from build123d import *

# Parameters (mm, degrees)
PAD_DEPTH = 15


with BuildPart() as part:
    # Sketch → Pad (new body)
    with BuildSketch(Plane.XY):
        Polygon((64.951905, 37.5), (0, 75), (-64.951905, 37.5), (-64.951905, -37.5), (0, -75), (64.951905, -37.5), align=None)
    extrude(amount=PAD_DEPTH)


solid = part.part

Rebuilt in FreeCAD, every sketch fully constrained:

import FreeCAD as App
import Part
import Sketcher
from FreeCAD import Vector
Q = App.Units.Quantity

doc = App.newDocument("Part")
body = doc.addObject("PartDesign::Body", "Body")

sketch1 = doc.addObject("Sketcher::SketchObject", "Sketch")
body.addObject(sketch1)
sketch1.AttachmentSupport = (doc.XY_Plane, [""])
sketch1.MapMode = "FlatFace"
sketch1.addGeometry([
    Part.LineSegment(Vector(64.951905, 37.5, 0), Vector(0, 75, 0)),
    Part.LineSegment(Vector(0, 75, 0), Vector(-64.951905, 37.5, 0)),
    Part.LineSegment(Vector(-64.951905, 37.5, 0), Vector(-64.951905, -37.5, 0)),
    Part.LineSegment(Vector(-64.951905, -37.5, 0), Vector(0, -75, 0)),
    Part.LineSegment(Vector(0, -75, 0), Vector(64.951905, -37.5, 0)),
    Part.LineSegment(Vector(64.951905, -37.5, 0), Vector(64.951905, 37.5, 0)),
], False)
sketch1.addConstraint([
    Sketcher.Constraint("Coincident", 0, 2, 1, 1),
    Sketcher.Constraint("Coincident", 1, 2, 2, 1),
    Sketcher.Constraint("Coincident", 2, 2, 3, 1),
    Sketcher.Constraint("Coincident", 3, 2, 4, 1),
    Sketcher.Constraint("Coincident", 4, 2, 5, 1),
    Sketcher.Constraint("Coincident", 5, 2, 0, 1),
    Sketcher.Constraint("Vertical", 2),
    Sketcher.Constraint("Vertical", 5),
    Sketcher.Constraint("Symmetric", 0, 2, 3, 2, -1, 1),
    Sketcher.Constraint("Symmetric", 1, 2, 4, 2, -1, 1),
    Sketcher.Constraint("PointOnObject", 0, 2, -2),
    Sketcher.Constraint("Parallel", 0, 3),
    Sketcher.Constraint("Horizontal", 2, 2, 4, 2),
    Sketcher.Constraint("DistanceY", 2, 2, 2, 1, Q("75 mm")),
    Sketcher.Constraint("Angle", 0, Q("150 deg")),
    Sketcher.Constraint("Distance", 0, Q("75 mm")),
])
pad1 = doc.addObject("PartDesign::Pad", "Pad")
body.addObject(pad1)
pad1.Profile = sketch1
pad1.Length = 15

doc.recompute()
